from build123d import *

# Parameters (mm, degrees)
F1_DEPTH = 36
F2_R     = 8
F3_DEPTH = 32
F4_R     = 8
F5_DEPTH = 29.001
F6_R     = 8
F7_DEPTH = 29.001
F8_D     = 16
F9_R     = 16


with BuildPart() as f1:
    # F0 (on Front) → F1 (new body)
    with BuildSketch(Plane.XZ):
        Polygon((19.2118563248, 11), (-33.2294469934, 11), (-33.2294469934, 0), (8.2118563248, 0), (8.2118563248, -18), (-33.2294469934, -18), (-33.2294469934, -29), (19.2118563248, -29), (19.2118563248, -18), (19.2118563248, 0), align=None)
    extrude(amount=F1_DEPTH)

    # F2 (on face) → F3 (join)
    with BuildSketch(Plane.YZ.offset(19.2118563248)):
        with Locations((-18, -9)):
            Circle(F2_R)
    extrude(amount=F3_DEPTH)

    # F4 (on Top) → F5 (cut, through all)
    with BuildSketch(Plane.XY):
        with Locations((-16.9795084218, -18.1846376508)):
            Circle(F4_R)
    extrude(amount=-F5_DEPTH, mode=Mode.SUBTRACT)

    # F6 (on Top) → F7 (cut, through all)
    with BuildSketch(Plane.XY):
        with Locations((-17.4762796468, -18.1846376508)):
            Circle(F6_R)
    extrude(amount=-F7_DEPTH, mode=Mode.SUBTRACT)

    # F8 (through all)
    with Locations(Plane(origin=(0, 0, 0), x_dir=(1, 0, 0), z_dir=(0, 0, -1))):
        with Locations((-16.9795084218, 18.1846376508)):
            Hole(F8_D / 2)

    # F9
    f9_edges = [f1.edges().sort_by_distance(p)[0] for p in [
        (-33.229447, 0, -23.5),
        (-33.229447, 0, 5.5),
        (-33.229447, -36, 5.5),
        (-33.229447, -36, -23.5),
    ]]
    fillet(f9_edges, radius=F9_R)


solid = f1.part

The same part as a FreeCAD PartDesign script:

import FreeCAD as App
import Part
import Sketcher
from FreeCAD import Vector


def edges_at(feature, points):
    """Names of the edges that pass closest to the given points."""
    edges = feature.Shape.Edges
    near = lambda p: min(range(len(edges)), key=lambda i: edges[i].distToShape(Part.Vertex(*p))[0])
    return sorted({f"Edge{near(p) + 1}" for p in points})

doc = App.newDocument("Part")
body = doc.addObject("PartDesign::Body", "Body")

# Sketch on XZ plane
sketch1 = body.newObject("Sketcher::SketchObject", "Sketch")
sketch1.AttachmentSupport = (doc.getObject("XZ_Plane"), [""])
sketch1.MapMode = "FlatFace"
sketch1.addGeometry([
    Part.LineSegment(Vector(19, 11, 0), Vector(-33, 11, 0)),  # 0
    Part.LineSegment(Vector(-33, 11, 0), Vector(-33, 0, 0)),  # 1
    Part.LineSegment(Vector(-33, 0, 0), Vector(8, 0, 0)),  # 2
    Part.LineSegment(Vector(8, 0, 0), Vector(8, -18, 0)),  # 3
    Part.LineSegment(Vector(8, -18, 0), Vector(-33, -18, 0)),  # 4
    Part.LineSegment(Vector(-33, -18, 0), Vector(-33, -29, 0)),  # 5
    Part.LineSegment(Vector(-33, -29, 0), Vector(19, -29, 0)),  # 6
    Part.LineSegment(Vector(19, -29, 0), Vector(19, 11, 0)),  # 7
], False)
sketch1.addConstraint([
    Sketcher.Constraint("Coincident", 0, 2, 1, 1),
    Sketcher.Constraint("Coincident", 1, 2, 2, 1),
    Sketcher.Constraint("Coincident", 2, 2, 3, 1),
    Sketcher.Constraint("Coincident", 3, 2, 4, 1),
    Sketcher.Constraint("Coincident", 4, 2, 5, 1),
    Sketcher.Constraint("Coincident", 5, 2, 6, 1),
    Sketcher.Constraint("Coincident", 6, 2, 7, 1),
    Sketcher.Constraint("Coincident", 7, 2, 0, 1),
    Sketcher.Constraint("Horizontal", 0),
    Sketcher.Constraint("Vertical", 1),
    Sketcher.Constraint("Horizontal", 2),
    Sketcher.Constraint("Vertical", 3),
    Sketcher.Constraint("Horizontal", 4),
    Sketcher.Constraint("Vertical", 5),
    Sketcher.Constraint("Horizontal", 6),
    Sketcher.Constraint("Vertical", 7),
    Sketcher.Constraint("PointOnObject", 1, 2, -1),
    Sketcher.Constraint("Vertical", 1, 2, 4, 2),
    Sketcher.Constraint("Equal", 1, 5),
    Sketcher.Constraint("DistanceY", 1, 2, 1, 1, 11.0),
    Sketcher.Constraint("DistanceY", 3, 2, 3, 1, 18.0),
    Sketcher.Constraint("DistanceX", 3, 2, 6, 2, 11.0),
    Sketcher.Constraint("DistanceX", 0, 2, 0, 1, 52.441303),
    Sketcher.Constraint("DistanceX", 0, 2, -1, 1, 33.229447),
])
pad1 = body.newObject("PartDesign::Pad", "Pad")
pad1.Profile = sketch1
pad1.Length = 36

# Sketch on YZ plane
sketch2 = body.newObject("Sketcher::SketchObject", "Sketch001")
sketch2.AttachmentSupport = (doc.getObject("YZ_Plane"), [""])
sketch2.MapMode = "FlatFace"
sketch2.AttachmentOffset = App.Placement(Vector(0, 0, 19.211856), App.Rotation())
sketch2.addGeometry(Part.Circle(Vector(-18, -9, 0), Vector(0, 0, 1), 8), False)
sketch2.addConstraint([
    Sketcher.Constraint("Diameter", 0, 16.0),
    Sketcher.Constraint("DistanceX", 0, 3, -1, 1, 18.0),
    Sketcher.Constraint("DistanceY", 0, 3, -1, 1, 9.0),
])
pad2 = body.newObject("PartDesign::Pad", "Pad001")
pad2.Profile = sketch2
pad2.Length = 32

# Sketch on XY plane
sketch3 = body.newObject("Sketcher::SketchObject", "Sketch002")
sketch3.AttachmentSupport = (doc.getObject("XY_Plane"), [""])
sketch3.MapMode = "FlatFace"
sketch3.addGeometry(Part.Circle(Vector(-17, -18, 0), Vector(0, 0, 1), 8), False)
sketch3.addConstraint([
    Sketcher.Constraint("Diameter", 0, 16.0),
    Sketcher.Constraint("DistanceX", 0, 3, -1, 1, 16.979508),
    Sketcher.Constraint("DistanceY", 0, 3, -1, 1, 18.184638),
])
pocket1 = body.newObject("PartDesign::Pocket", "Pocket")
pocket1.Profile = sketch3
pocket1.Type = "ThroughAll"

# Sketch on XY plane
sketch4 = body.newObject("Sketcher::SketchObject", "Sketch003")
sketch4.AttachmentSupport = (doc.getObject("XY_Plane"), [""])
sketch4.MapMode = "FlatFace"
sketch4.addGeometry(Part.Circle(Vector(-17, -18, 0), Vector(0, 0, 1), 8), False)
sketch4.addConstraint([
    Sketcher.Constraint("Diameter", 0, 16.0),
    Sketcher.Constraint("DistanceX", 0, 3, -1, 1, 17.47628),
    Sketcher.Constraint("DistanceY", 0, 3, -1, 1, 18.184638),
])
pocket2 = body.newObject("PartDesign::Pocket", "Pocket001")
pocket2.Profile = sketch4
pocket2.Type = "ThroughAll"

# Sketch on XY plane
sketch5 = body.newObject("Sketcher::SketchObject", "Sketch004")
sketch5.AttachmentSupport = (doc.getObject("XY_Plane"), [""])
sketch5.MapMode = "FlatFace"
sketch5.addGeometry(Part.Circle(Vector(-17, -18, 0), Vector(0, 0, 1), 8), False)
sketch5.addConstraint([
    Sketcher.Constraint("Diameter", 0, 16.0),
    Sketcher.Constraint("DistanceX", 0, 3, -1, 1, 16.979508),
    Sketcher.Constraint("DistanceY", 0, 3, -1, 1, 18.184638),
])
doc.recompute()
hole = body.newObject("PartDesign::Hole", "Hole")
hole.Profile = sketch5
hole.ThreadType = "None"
hole.Diameter = 16
hole.DepthType = "ThroughAll"
hole.Reversed = True
doc.recompute()

fillet = body.newObject("PartDesign::Fillet", "Fillet")
fillet.Base = (hole, edges_at(hole, [
    (-33.229, 0, -23.5),
    (-33.229, 0, 5.5),
    (-33.229, -36, 5.5),
    (-33.229, -36, -23.5),
]))
fillet.Radius = 16

doc.recompute()
